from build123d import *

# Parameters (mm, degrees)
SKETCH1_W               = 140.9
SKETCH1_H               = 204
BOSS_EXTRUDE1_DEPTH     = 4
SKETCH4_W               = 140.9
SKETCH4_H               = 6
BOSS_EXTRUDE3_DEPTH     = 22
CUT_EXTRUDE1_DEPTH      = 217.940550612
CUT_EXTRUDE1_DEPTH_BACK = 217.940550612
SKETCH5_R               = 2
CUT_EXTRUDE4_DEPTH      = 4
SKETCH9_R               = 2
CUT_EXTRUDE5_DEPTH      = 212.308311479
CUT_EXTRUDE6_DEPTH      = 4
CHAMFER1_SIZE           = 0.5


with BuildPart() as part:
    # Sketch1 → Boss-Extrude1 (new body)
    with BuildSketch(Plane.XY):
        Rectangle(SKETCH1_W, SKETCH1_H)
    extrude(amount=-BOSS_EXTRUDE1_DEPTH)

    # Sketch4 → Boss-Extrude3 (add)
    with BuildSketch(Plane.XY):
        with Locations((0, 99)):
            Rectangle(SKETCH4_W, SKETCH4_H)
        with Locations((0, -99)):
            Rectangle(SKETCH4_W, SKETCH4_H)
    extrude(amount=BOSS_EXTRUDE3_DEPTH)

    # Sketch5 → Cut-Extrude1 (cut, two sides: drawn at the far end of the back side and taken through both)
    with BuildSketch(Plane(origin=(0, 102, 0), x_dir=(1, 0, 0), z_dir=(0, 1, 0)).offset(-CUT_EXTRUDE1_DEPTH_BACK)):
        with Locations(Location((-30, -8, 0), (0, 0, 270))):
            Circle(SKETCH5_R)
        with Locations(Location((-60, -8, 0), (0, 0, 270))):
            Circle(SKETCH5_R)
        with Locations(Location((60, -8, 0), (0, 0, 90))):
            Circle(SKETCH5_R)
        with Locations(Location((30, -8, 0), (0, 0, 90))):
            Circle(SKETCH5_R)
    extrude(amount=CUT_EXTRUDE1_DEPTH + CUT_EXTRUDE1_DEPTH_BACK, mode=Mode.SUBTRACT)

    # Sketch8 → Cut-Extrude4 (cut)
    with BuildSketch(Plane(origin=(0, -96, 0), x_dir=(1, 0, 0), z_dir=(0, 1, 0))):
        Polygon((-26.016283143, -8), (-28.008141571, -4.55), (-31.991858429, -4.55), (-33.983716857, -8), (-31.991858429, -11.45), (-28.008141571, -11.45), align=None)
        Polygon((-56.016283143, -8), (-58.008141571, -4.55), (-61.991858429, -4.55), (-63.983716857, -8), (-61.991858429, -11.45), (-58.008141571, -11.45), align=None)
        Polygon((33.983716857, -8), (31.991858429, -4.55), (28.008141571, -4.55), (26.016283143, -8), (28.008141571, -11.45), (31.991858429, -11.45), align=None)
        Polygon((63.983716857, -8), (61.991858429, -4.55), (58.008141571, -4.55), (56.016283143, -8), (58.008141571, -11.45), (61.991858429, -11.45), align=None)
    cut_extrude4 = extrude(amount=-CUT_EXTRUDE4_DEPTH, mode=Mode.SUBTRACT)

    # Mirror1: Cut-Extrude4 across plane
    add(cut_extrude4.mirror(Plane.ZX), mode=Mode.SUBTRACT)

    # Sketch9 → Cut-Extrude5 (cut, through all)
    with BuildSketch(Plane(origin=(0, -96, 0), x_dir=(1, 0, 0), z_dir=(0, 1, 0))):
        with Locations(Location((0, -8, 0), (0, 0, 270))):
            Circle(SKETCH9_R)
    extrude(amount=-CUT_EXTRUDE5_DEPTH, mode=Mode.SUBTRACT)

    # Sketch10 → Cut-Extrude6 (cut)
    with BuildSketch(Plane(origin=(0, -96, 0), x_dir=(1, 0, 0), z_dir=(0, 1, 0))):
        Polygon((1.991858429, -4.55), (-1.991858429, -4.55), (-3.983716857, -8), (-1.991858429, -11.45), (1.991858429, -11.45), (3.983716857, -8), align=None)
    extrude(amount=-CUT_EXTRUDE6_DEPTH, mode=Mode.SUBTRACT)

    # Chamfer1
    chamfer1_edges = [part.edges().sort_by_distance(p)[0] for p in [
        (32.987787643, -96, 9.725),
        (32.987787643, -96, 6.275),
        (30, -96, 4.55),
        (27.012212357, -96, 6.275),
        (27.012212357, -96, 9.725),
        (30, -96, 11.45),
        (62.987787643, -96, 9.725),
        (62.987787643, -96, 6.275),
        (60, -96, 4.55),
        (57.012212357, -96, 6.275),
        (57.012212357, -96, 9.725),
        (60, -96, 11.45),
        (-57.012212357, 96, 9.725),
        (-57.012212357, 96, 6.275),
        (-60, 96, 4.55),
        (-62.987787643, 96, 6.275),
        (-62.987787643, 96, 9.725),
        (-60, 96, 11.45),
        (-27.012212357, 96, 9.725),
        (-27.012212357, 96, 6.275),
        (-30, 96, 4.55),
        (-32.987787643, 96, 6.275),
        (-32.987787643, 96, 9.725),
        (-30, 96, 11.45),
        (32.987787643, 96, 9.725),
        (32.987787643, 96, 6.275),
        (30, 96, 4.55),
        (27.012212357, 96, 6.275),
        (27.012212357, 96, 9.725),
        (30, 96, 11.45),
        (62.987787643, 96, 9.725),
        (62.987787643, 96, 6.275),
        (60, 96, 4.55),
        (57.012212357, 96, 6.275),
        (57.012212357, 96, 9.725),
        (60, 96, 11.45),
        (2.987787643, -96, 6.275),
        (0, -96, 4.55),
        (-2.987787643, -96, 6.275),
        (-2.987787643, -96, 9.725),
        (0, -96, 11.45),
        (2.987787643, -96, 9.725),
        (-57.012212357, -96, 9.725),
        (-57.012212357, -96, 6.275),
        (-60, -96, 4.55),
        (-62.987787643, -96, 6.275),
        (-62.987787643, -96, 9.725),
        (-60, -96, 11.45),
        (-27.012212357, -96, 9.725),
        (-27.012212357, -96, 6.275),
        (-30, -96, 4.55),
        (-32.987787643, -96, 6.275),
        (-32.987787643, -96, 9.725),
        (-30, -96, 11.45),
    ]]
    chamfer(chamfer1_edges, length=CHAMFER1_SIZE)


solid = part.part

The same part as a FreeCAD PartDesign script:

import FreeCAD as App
import Part
import Sketcher
from FreeCAD import Vector
Q = App.Units.Quantity


def edges_at(feature, points):
    """Names of the edges that pass closest to the given points."""
    edges = feature.Shape.Edges
    near = lambda p: min(range(len(edges)), key=lambda i: edges[i].distToShape(Part.Vertex(*p))[0])
    return sorted({f"Edge{near(p) + 1}" for p in points})


def add_polygon(sketch, points):
    """Adds a closed chain of lines whose ends are joined by coincident constraints."""
    first, n = sketch.GeometryCount, len(points)
    for a, b in zip(points, points[1:] + points[:1]):
        sketch.addGeometry(Part.LineSegment(App.Vector(*a, 0), App.Vector(*b, 0)), False)
    for i in range(n):
        sketch.addConstraint(Sketcher.Constraint("Coincident", first + i, 2, first + (i + 1) % n, 1))

doc = App.newDocument("Part")
params = doc.addObject("Spreadsheet::Sheet", "Params")
for row, (alias, value) in enumerate([
    ("sketch1_height", "204 mm"),
    ("sketch1_width", "140.9 mm"),
    ("pad1_length", "4 mm"),
    ("sketch2_height", "6 mm"),
    ("sketch2_width", "140.9 mm"),
    ("pad2_length", "22 mm"),
    ("sketch3_diameter", "4 mm"),
    ("pocket2_length", "4 mm"),
    ("sketch5_diameter", "4 mm"),
    ("pocket4_length", "4 mm"),
    ("chamfer_size", "0.5 mm"),
], start=1):
    params.set(f"A{row}", alias)
    params.set(f"B{row}", "=" + value)
    params.setAlias(f"B{row}", alias)

body = doc.addObject("PartDesign::Body", "Body")

# Sketch on XY plane
sketch1 = body.newObject("Sketcher::SketchObject", "Sketch")
sketch1.AttachmentSupport = (doc.getObject("XY_Plane"), [""])
sketch1.MapMode = "FlatFace"
add_polygon(sketch1, [(-70, 102), (-70, -102), (70, -102), (70, 102)])  # lines 0-3
sketch1.addConstraint([
    Sketcher.Constraint("Vertical", 0),
    Sketcher.Constraint("Horizontal", 1),
    Sketcher.Constraint("Vertical", 2),
    Sketcher.Constraint("Horizontal", 3),
    Sketcher.Constraint("Symmetric", 0, 2, 2, 2, -1, 1),
    Sketcher.Constraint("DistanceY", 0, 2, 0, 1, Q("204 mm")),
    Sketcher.Constraint("DistanceX", 1, 1, 1, 2, Q("140.9 mm")),
])
sketch1.setExpression("Constraints[9]", "Params.sketch1_height")
sketch1.setExpression("Constraints[10]", "Params.sketch1_width")
pad1 = body.newObject("PartDesign::Pad", "Pad")
pad1.Profile = sketch1
pad1.setExpression("Length", "Params.pad1_length")
pad1.Reversed = True

# Sketch on XY plane
sketch2 = body.newObject("Sketcher::SketchObject", "Sketch001")
sketch2.AttachmentSupport = (doc.getObject("XY_Plane"), [""])
sketch2.MapMode = "FlatFace"
add_polygon(sketch2, [(-70, 102), (-70, 96), (70, 96), (70, 102)])  # lines 0-3
add_polygon(sketch2, [(-70, -96), (-70, -102), (70, -102), (70, -96)])  # lines 4-7
sketch2.addConstraint([
    Sketcher.Constraint("Vertical", 0),
    Sketcher.Constraint("Horizontal", 1),
    Sketcher.Constraint("Vertical", 2),
    Sketcher.Constraint("Horizontal", 3),
    Sketcher.Constraint("Vertical", 4),
    Sketcher.Constraint("Horizontal", 5),
    Sketcher.Constraint("Vertical", 6),
    Sketcher.Constraint("Horizontal", 7),
    Sketcher.Constraint("Symmetric", 2, 2, 4, 2, -1, 1),
    Sketcher.Constraint("Symmetric", 0, 2, 6, 2, -1, 1),
    Sketcher.Constraint("Vertical", 3, 2, 4, 2),
    Sketcher.Constraint("DistanceY", 0, 2, 0, 1, Q("6 mm")),
    Sketcher.Constraint("DistanceX", 1, 1, 1, 2, Q("140.9 mm")),
    Sketcher.Constraint("DistanceY", -1, 1, 0, 2, Q("96 mm")),
])
sketch2.setExpression("Constraints[19]", "Params.sketch2_height")
sketch2.setExpression("Constraints[20]", "Params.sketch2_width")
pad2 = body.newObject("PartDesign::Pad", "Pad001")
pad2.Profile = sketch2
pad2.setExpression("Length", "Params.pad2_length")

# Sketch on XZ plane
sketch3 = body.newObject("Sketcher::SketchObject", "Sketch002")
sketch3.AttachmentSupport = (doc.getObject("XZ_Plane"), [""])
sketch3.MapMode = "FlatFace"
sketch3.AttachmentOffset = App.Placement(Vector(0, 0, -102), App.Rotation())
sketch3.addGeometry([
    Part.Circle(Vector(-30, 8, 0), Vector(0, 0, 1), 2),
    Part.Circle(Vector(-60, 8, 0), Vector(0, 0, 1), 2),
    Part.Circle(Vector(60, 8, 0), Vector(0, 0, 1), 2),
    Part.Circle(Vector(30, 8, 0), Vector(0, 0, 1), 2),
], False)
sketch3.addConstraint([
    Sketcher.Constraint("Equal", 0, 1),
    Sketcher.Constraint("Equal", 1, 2),
    Sketcher.Constraint("Equal", 2, 3),
    Sketcher.Constraint("Symmetric", 1, 3, 2, 3, -2),
    Sketcher.Constraint("Symmetric", 0, 3, 3, 3, -2),
    Sketcher.Constraint("Horizontal", 0, 3, 1, 3),
    Sketcher.Constraint("Diameter", 0, Q("4 mm")),
    Sketcher.Constraint("DistanceX", 0, 3, -1, 1, Q("30 mm")),
    Sketcher.Constraint("DistanceY", -1, 1, 0, 3, Q("8 mm")),
    Sketcher.Constraint("DistanceX", 1, 3, -1, 1, Q("60 mm")),
])
sketch3.setExpression("Constraints[6]", "Params.sketch3_diameter")
pocket1 = body.newObject("PartDesign::Pocket", "Pocket")
pocket1.Profile = sketch3
pocket1.Type = "ThroughAll"
pocket1.Midplane = True

# Sketch on XZ plane
sketch4 = body.newObject("Sketcher::SketchObject", "Sketch003")
sketch4.AttachmentSupport = (doc.getObject("XZ_Plane"), [""])
sketch4.MapMode = "FlatFace"
sketch4.AttachmentOffset = App.Placement(Vector(0, 0, 96), App.Rotation())
add_polygon(sketch4, [(-26, 8), (-28, 4.5), (-32, 4.5), (-34, 8), (-32, 11.4), (-28, 11.4)])  # lines 0-5
add_polygon(sketch4, [(-56, 8), (-58, 4.5), (-62, 4.5), (-64, 8), (-62, 11.4), (-58, 11.4)])  # lines 6-11
add_polygon(sketch4, [(34, 8), (32, 4.5), (28, 4.5), (26, 8), (28, 11.4), (32, 11.4)])  # lines 12-17
add_polygon(sketch4, [(64, 8), (62, 4.5), (58, 4.5), (56, 8), (58, 11.4), (62, 11.4)])  # lines 18-23
sketch4.addConstraint([
    Sketcher.Constraint("Horizontal", 1),
    Sketcher.Constraint("Horizontal", 4),
    Sketcher.Constraint("Horizontal", 7),
    Sketcher.Constraint("Horizontal", 10),
    Sketcher.Constraint("Horizontal", 13),
    Sketcher.Constraint("Horizontal", 16),
    Sketcher.Constraint("Horizontal", 19),
    Sketcher.Constraint("Horizontal", 22),
    Sketcher.Constraint("Symmetric", 1, 2, 12, 2, -2),
    Sketcher.Constraint("Symmetric", 5, 2, 14, 2, -2),
    Sketcher.Constraint("Symmetric", 4, 2, 15, 2, -2),
    Sketcher.Constraint("Symmetric", 2, 2, 17, 2, -2),
    Sketcher.Constraint("Symmetric", 7, 2, 18, 2, -2),
    Sketcher.Constraint("Symmetric", 11, 2, 20, 2, -2),
    Sketcher.Constraint("Symmetric", 10, 2, 21, 2, -2),
    Sketcher.Constraint("Symmetric", 8, 2, 23, 2, -2),
    Sketcher.Constraint("Parallel", 0, 3),
    Sketcher.Constraint("Parallel", 2, 5),
    Sketcher.Constraint("Parallel", 3, 6),
    Sketcher.Constraint("Parallel", 5, 8),
    Sketcher.Constraint("Parallel", 6, 9),
    Sketcher.Constraint("Parallel", 8, 11),
    Sketcher.Constraint("Parallel", 9, 12),
    Sketcher.Constraint("Parallel", 11, 14),
    Sketcher.Constraint("Parallel", 14, 17),
    Sketcher.Constraint("Parallel", 17, 20),
    Sketcher.Constraint("Parallel", 20, 23),
    Sketcher.Constraint("Horizontal", 2, 2, 5, 2),
    Sketcher.Constraint("Horizontal", 1, 2, 6, 2),
    Sketcher.Constraint("Horizontal", 5, 2, 8, 2),
    Sketcher.Constraint("Horizontal", 4, 2, 9, 2),
    Sketcher.Constraint("Horizontal", 8, 2, 11, 2),
    Sketcher.Constraint("Vertical", 1, 2, 3, 2),
    Sketcher.Constraint("Equal", 4, 7),
    Sketcher.Constraint("Angle", 0, Q("-120 deg")),
    Sketcher.Constraint("DistanceY", -1, 1, 2, 2, Q("8 mm")),
    Sketcher.Constraint("DistanceX", 6, 2, 0, 2, Q("30 mm")),
    Sketcher.Constraint("DistanceX", 0, 2, 12, 2, Q("60 mm")),
    Sketcher.Constraint("DistanceY", 1, 2, 3, 2, Q("6.9 mm")),
    Sketcher.Constraint("DistanceX", 1, 2, 1, 1, Q("3.983717 mm")),
])
pocket2 = body.newObject("PartDesign::Pocket", "Pocket001")
pocket2.Profile = sketch4
pocket2.setExpression("Length", "Params.pocket2_length")
pocket2.Reversed = True
doc.recompute()

mirrored = body.newObject("PartDesign::Mirrored", "Mirrored")
mirrored.Originals = [pocket2]
mirrored.MirrorPlane = (doc.getObject("XZ_Plane"), [""])
body.Tip = mirrored

# Sketch on XZ plane
sketch5 = body.newObject("Sketcher::SketchObject", "Sketch004")
sketch5.AttachmentSupport = (doc.getObject("XZ_Plane"), [""])
sketch5.MapMode = "FlatFace"
sketch5.AttachmentOffset = App.Placement(Vector(0, 0, 96), App.Rotation())
sketch5.addGeometry(Part.Circle(Vector(0, 8, 0), Vector(0, 0, 1), 2), False)
sketch5.addConstraint([
    Sketcher.Constraint("PointOnObject", 0, 3, -2),
    Sketcher.Constraint("Diameter", 0, Q("4 mm")),
    Sketcher.Constraint("DistanceY", -1, 1, 0, 3, Q("8 mm")),
])
sketch5.setExpression("Constraints[1]", "Params.sketch5_diameter")
pocket3 = body.newObject("PartDesign::Pocket", "Pocket002")
pocket3.Profile = sketch5
pocket3.Type = "ThroughAll"
pocket3.Reversed = True

# Sketch on XZ plane
sketch6 = body.newObject("Sketcher::SketchObject", "Sketch005")
sketch6.AttachmentSupport = (doc.getObject("XZ_Plane"), [""])
sketch6.MapMode = "FlatFace"
sketch6.AttachmentOffset = App.Placement(Vector(0, 0, 96), App.Rotation())
add_polygon(sketch6, [(2, 4.5), (-2, 4.5), (-4, 8), (-2, 11.4), (2, 11.4), (4, 8)])  # lines 0-5
sketch6.addConstraint([
    Sketcher.Constraint("Horizontal", 0),
    Sketcher.Constraint("Horizontal", 3),
    Sketcher.Constraint("Symmetric", 1, 2, 4, 2, -2),
    Sketcher.Constraint("Parallel", 1, 4),
    Sketcher.Constraint("Parallel", 2, 5),
    Sketcher.Constraint("Vertical", 0, 2, 2, 2),
    Sketcher.Constraint("Vertical", 3, 2, 5, 2),
    Sketcher.Constraint("Angle", 1, Q("120 deg")),
    Sketcher.Constraint("DistanceY", -1, 1, 1, 2, Q("8 mm")),
    Sketcher.Constraint("DistanceY", 0, 2, 2, 2, Q("6.9 mm")),
    Sketcher.Constraint("DistanceX", 0, 2, 0, 1, Q("3.983717 mm")),
])
pocket4 = body.newObject("PartDesign::Pocket", "Pocket003")
pocket4.Profile = sketch6
pocket4.setExpression("Length", "Params.pocket4_length")
pocket4.Reversed = True
doc.recompute()

chamfer = body.newObject("PartDesign::Chamfer", "Chamfer")
chamfer.Base = (pocket4, edges_at(pocket4, [
    (32.988, -96, 9.725),
    (32.988, -96, 6.275),
    (30, -96, 4.55),
    (27.012, -96, 6.275),
    (27.012, -96, 9.725),
    (30, -96, 11.45),
    (62.988, -96, 9.725),
    (62.988, -96, 6.275),
    (60, -96, 4.55),
    (57.012, -96, 6.275),
    (57.012, -96, 9.725),
    (60, -96, 11.45),
    (-57.012, 96, 9.725),
    (-57.012, 96, 6.275),
    (-60, 96, 4.55),
    (-62.988, 96, 6.275),
    (-62.988, 96, 9.725),
    (-60, 96, 11.45),
    (-27.012, 96, 9.725),
    (-27.012, 96, 6.275),
    (-30, 96, 4.55),
    (-32.988, 96, 6.275),
    (-32.988, 96, 9.725),
    (-30, 96, 11.45),
    (32.988, 96, 9.725),
    (32.988, 96, 6.275),
    (30, 96, 4.55),
    (27.012, 96, 6.275),
    (27.012, 96, 9.725),
    (30, 96, 11.45),
    (62.988, 96, 9.725),
    (62.988, 96, 6.275),
    (60, 96, 4.55),
    (57.012, 96, 6.275),
    (57.012, 96, 9.725),
    (60, 96, 11.45),
    (2.988, -96, 6.275),
    (0, -96, 4.55),
    (-2.988, -96, 6.275),
    (-2.988, -96, 9.725),
    (0, -96, 11.45),
    (2.988, -96, 9.725),
    (-57.012, -96, 9.725),
    (-57.012, -96, 6.275),
    (-60, -96, 4.55),
    (-62.988, -96, 6.275),
    (-62.988, -96, 9.725),
    (-60, -96, 11.45),
    (-27.012, -96, 9.725),
    (-27.012, -96, 6.275),
    (-30, -96, 4.55),
    (-32.988, -96, 6.275),
    (-32.988, -96, 9.725),
    (-30, -96, 11.45),
]))
chamfer.setExpression("Size", "Params.chamfer_size")

doc.recompute()
